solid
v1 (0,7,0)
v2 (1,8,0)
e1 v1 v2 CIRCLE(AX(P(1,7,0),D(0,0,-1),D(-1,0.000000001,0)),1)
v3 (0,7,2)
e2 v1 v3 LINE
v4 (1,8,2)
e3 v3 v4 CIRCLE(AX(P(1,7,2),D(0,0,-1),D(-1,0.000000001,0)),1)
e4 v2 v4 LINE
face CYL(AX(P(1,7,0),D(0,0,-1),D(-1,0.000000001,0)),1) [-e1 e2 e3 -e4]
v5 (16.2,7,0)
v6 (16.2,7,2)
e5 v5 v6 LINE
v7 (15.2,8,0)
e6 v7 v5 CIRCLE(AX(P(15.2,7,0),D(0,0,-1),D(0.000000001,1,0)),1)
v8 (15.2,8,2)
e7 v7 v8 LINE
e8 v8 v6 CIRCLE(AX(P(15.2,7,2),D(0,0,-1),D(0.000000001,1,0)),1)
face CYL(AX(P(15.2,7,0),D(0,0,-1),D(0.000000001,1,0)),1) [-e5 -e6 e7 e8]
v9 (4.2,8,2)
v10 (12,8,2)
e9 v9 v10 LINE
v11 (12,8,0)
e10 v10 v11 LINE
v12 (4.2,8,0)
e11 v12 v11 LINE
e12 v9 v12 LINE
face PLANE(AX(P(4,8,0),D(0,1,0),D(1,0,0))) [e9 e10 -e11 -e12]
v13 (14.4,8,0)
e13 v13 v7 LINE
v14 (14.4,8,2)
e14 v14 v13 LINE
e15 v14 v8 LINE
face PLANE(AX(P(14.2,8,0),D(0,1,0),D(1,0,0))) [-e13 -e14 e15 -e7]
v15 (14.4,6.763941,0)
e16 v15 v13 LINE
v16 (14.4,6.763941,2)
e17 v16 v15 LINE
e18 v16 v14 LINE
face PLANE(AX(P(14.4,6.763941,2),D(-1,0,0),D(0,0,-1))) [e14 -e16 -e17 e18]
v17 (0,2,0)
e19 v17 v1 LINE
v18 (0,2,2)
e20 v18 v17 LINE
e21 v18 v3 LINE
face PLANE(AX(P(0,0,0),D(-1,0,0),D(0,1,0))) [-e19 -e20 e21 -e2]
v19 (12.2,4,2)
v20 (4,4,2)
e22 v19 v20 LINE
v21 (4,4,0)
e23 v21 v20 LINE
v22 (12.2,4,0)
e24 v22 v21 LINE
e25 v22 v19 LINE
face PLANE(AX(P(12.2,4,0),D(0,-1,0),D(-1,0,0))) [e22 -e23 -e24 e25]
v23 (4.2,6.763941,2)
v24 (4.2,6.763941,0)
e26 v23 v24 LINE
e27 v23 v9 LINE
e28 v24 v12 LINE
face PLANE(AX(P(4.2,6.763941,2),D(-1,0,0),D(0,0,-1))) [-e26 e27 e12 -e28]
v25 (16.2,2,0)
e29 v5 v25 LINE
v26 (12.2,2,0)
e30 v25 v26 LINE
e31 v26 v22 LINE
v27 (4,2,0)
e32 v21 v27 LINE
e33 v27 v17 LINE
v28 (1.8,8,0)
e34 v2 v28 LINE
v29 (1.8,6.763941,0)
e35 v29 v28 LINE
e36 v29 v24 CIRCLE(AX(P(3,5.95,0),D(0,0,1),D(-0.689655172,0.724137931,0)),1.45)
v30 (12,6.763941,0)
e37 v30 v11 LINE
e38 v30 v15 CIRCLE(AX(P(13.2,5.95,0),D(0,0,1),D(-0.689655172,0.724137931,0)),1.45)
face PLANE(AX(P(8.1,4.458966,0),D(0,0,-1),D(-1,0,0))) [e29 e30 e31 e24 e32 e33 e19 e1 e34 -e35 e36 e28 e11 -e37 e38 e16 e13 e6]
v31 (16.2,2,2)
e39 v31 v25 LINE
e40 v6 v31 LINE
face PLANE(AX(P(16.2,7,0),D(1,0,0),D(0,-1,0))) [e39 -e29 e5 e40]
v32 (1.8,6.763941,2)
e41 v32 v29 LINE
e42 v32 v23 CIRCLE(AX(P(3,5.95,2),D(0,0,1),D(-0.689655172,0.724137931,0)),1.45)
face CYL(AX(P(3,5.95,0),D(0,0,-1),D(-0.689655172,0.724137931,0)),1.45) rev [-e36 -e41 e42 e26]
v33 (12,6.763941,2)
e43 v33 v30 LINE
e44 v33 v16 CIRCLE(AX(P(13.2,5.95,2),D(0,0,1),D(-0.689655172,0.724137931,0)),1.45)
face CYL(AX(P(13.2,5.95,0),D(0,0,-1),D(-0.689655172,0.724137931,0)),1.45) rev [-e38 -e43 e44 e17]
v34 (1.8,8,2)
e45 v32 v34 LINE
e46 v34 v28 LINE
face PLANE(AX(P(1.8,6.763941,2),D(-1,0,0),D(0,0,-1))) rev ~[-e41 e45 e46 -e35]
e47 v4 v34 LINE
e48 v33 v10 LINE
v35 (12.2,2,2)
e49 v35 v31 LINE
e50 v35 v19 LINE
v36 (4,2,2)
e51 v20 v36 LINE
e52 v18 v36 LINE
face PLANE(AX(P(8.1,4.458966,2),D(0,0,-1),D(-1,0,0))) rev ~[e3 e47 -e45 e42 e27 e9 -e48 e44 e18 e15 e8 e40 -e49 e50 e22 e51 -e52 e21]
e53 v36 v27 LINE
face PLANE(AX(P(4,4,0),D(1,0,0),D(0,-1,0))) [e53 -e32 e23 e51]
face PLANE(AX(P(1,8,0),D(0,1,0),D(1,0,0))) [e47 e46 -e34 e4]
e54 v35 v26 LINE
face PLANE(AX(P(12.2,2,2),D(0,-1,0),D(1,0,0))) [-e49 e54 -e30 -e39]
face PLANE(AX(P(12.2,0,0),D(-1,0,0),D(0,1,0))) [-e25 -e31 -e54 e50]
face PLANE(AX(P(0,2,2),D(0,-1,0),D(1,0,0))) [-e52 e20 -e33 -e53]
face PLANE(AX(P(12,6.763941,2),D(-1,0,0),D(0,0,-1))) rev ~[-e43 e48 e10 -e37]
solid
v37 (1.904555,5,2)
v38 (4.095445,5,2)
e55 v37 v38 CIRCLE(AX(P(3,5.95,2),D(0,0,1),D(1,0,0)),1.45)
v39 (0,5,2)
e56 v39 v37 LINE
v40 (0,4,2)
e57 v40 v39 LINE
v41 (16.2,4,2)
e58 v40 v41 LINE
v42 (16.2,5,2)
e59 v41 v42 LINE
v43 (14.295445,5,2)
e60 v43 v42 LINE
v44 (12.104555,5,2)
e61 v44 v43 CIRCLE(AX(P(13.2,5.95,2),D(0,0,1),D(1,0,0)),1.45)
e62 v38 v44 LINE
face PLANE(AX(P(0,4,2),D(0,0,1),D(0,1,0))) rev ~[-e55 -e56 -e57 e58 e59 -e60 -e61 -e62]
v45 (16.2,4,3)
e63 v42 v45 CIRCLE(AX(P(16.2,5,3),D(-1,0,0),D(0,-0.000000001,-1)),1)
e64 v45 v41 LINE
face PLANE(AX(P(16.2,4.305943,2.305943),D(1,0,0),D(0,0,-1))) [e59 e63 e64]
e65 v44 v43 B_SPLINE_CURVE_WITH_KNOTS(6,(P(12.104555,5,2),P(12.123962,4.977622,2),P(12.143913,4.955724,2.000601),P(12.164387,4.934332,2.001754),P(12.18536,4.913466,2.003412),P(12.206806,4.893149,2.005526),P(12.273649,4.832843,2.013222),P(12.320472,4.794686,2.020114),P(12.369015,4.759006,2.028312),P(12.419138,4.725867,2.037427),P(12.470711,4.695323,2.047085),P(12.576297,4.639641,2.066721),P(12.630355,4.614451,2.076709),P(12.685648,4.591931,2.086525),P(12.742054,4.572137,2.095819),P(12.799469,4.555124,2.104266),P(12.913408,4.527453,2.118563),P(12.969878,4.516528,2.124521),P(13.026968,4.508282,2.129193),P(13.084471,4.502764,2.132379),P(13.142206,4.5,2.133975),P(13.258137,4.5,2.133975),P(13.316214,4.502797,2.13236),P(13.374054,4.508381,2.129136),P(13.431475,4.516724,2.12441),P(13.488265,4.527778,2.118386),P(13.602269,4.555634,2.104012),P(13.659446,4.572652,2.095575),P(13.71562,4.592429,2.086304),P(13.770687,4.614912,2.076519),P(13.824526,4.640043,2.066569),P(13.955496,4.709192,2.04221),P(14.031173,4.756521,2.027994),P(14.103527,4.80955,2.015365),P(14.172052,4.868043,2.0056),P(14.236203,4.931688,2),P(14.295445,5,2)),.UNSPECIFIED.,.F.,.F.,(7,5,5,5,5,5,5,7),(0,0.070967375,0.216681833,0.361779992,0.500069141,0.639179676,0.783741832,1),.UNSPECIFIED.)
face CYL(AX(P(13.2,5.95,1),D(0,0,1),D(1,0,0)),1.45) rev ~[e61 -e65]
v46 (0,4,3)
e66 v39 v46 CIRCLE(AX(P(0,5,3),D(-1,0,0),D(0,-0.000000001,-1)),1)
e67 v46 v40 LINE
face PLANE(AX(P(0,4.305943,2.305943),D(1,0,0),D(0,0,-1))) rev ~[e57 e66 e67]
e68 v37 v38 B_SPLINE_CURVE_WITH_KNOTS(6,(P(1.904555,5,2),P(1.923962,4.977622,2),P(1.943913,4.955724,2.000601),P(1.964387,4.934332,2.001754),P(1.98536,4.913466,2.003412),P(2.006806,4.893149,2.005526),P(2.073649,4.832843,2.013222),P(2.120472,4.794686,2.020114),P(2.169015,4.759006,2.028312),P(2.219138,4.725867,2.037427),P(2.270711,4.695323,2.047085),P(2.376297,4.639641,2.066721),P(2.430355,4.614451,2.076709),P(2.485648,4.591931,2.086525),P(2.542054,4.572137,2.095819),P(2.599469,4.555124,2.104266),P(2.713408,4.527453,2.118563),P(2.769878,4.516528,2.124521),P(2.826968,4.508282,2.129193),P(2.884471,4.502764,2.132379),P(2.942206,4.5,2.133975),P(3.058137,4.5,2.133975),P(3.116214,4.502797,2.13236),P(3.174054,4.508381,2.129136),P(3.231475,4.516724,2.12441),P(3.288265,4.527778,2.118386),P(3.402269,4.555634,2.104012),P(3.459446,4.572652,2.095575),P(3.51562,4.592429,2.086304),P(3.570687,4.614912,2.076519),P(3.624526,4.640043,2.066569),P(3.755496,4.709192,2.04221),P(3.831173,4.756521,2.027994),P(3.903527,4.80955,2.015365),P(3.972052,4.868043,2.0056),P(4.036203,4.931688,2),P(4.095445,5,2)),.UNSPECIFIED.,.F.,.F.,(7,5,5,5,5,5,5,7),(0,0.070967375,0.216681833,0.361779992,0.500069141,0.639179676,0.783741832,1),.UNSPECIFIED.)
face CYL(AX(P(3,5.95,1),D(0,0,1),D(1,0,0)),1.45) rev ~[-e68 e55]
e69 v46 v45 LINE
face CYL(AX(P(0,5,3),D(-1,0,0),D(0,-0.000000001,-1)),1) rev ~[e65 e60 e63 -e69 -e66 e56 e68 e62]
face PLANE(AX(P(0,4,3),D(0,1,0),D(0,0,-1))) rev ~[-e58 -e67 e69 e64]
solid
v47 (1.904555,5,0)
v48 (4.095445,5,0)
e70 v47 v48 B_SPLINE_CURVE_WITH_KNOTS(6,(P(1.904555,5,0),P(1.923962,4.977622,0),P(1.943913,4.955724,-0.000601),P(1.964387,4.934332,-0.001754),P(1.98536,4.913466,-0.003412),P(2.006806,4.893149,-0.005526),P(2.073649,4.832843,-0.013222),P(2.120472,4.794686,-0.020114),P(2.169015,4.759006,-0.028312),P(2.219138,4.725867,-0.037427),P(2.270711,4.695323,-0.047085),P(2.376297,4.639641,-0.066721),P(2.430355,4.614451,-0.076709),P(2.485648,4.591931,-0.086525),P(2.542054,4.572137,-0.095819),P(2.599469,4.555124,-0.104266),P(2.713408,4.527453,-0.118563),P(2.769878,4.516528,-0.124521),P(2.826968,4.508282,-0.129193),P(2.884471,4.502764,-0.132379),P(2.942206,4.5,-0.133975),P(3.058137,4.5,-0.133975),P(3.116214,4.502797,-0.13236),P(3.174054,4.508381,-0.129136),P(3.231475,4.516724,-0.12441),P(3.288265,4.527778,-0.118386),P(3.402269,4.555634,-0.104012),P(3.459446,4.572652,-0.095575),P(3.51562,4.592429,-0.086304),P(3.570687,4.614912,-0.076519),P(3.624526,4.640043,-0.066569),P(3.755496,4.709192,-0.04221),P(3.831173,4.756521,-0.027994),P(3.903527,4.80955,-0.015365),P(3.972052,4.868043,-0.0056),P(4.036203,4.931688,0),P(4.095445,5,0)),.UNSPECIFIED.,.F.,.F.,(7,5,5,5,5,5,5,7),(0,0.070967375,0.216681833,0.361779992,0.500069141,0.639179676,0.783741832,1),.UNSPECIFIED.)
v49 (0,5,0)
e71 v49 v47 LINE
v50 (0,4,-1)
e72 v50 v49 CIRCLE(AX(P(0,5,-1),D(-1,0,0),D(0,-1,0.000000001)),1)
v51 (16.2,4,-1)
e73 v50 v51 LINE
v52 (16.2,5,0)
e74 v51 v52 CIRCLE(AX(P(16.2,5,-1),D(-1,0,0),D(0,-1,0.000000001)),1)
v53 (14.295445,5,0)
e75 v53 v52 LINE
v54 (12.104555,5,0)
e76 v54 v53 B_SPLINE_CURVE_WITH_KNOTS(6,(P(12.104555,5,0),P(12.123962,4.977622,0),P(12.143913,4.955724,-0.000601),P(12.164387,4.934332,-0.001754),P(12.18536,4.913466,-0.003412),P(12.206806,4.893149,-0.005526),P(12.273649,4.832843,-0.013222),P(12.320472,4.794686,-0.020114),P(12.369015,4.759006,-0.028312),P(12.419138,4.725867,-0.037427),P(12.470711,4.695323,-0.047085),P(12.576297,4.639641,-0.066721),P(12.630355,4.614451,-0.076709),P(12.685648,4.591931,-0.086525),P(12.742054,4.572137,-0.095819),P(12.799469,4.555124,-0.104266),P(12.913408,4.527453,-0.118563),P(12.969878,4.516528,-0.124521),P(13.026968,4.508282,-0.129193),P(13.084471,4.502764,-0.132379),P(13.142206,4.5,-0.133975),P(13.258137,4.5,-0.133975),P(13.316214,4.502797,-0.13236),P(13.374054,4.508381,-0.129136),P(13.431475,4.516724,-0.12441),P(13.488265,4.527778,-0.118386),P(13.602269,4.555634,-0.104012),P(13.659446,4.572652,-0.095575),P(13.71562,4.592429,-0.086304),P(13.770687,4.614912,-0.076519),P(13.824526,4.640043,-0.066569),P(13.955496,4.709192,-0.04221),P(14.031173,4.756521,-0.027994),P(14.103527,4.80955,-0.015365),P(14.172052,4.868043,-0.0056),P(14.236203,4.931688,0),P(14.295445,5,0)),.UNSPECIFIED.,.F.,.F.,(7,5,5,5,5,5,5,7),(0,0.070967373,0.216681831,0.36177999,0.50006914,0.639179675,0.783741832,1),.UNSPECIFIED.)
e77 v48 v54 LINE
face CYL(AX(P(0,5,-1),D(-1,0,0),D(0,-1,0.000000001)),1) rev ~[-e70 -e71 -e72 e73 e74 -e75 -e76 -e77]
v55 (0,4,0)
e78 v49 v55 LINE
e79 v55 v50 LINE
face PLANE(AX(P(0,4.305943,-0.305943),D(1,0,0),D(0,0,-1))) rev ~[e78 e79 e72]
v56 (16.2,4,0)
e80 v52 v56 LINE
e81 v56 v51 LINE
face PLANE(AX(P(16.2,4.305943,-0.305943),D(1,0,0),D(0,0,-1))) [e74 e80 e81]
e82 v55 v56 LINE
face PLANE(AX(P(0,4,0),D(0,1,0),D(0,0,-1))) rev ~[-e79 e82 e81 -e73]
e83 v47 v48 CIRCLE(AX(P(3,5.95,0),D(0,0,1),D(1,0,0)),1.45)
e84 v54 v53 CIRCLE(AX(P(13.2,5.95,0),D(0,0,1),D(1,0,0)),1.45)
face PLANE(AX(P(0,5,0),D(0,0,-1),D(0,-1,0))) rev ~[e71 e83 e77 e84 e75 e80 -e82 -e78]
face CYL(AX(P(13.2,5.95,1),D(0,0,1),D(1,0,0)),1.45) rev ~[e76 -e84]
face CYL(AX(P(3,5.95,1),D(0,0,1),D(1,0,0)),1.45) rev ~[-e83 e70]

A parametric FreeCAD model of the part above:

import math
import FreeCAD as App
import Part
import Sketcher
from FreeCAD import Vector


def add_polygon(sketch, points):
    """Adds a closed chain of lines whose ends are joined by coincident constraints."""
    first, n = sketch.GeometryCount, len(points)
    for a, b in zip(points, points[1:] + points[:1]):
        sketch.addGeometry(Part.LineSegment(App.Vector(*a, 0), App.Vector(*b, 0)), False)
    for i in range(n):
        sketch.addConstraint(Sketcher.Constraint("Coincident", first + i, 2, first + (i + 1) % n, 1))

doc = App.newDocument("Part")
body = doc.addObject("PartDesign::Body", "Body")

sketch1 = body.newObject("Sketcher::SketchObject", "Sketch")
sketch1.AttachmentSupport = (doc.getObject("XY_Plane"), [""])
sketch1.MapMode = "FlatFace"
sketch1.addGeometry([
    Part.LineSegment(Vector(12.2, 8, 0), Vector(4, 8, 0)),
    Part.LineSegment(Vector(4, 8, 0), Vector(4, 7, 0)),
    Part.ArcOfCircle(Part.Circle(Vector(3, 6, 0), Vector(0, 0, 1), 1.4), math.radians(134), math.radians(406)),
    Part.LineSegment(Vector(2, 7, 0), Vector(2, 8, 0)),
    Part.LineSegment(Vector(2, 8, 0), Vector(1, 8, 0)),
    Part.ArcOfCircle(Part.Circle(Vector(1, 7, 0), Vector(0, 0, 1), 1), math.radians(90), math.radians(180)),
    Part.LineSegment(Vector(0, 7, 0), Vector(0, 0, 0)),
    Part.LineSegment(Vector(0, 0, 0), Vector(4, 0, 0)),
    Part.LineSegment(Vector(4, 0, 0), Vector(4, 4, 0)),
    Part.LineSegment(Vector(4, 4, 0), Vector(12.2, 4, 0)),
    Part.LineSegment(Vector(12.2, 4, 0), Vector(12.2, 0, 0)),
    Part.LineSegment(Vector(12.2, 0, 0), Vector(16.2, 0, 0)),
    Part.LineSegment(Vector(16.2, 0, 0), Vector(16.2, 7, 0)),
    Part.ArcOfCircle(Part.Circle(Vector(15.2, 7, 0), Vector(0, 0, 1), 1), math.radians(0), math.radians(90)),
    Part.LineSegment(Vector(15.2, 8, 0), Vector(14.2, 8, 0)),
    Part.LineSegment(Vector(14.2, 8, 0), Vector(14.2, 7, 0)),
    Part.ArcOfCircle(Part.Circle(Vector(13.2, 6, 0), Vector(0, 0, 1), 1.4), math.radians(134), math.radians(406)),
    Part.LineSegment(Vector(12.2, 7, 0), Vector(12.2, 8, 0)),
], False)
sketch1.addConstraint([
    Sketcher.Constraint("Coincident", 0, 2, 1, 1),
    Sketcher.Constraint("Coincident", 1, 2, 2, 2),
    Sketcher.Constraint("Coincident", 2, 1, 3, 1),
    Sketcher.Constraint("Coincident", 3, 2, 4, 1),
    Sketcher.Constraint("Tangent", 4, 2, 5, 1),
    Sketcher.Constraint("Tangent", 5, 2, 6, 1),
    Sketcher.Constraint("Coincident", 6, 2, 7, 1),
    Sketcher.Constraint("Coincident", 7, 2, 8, 1),
    Sketcher.Constraint("Coincident", 8, 2, 9, 1),
    Sketcher.Constraint("Coincident", 9, 2, 10, 1),
    Sketcher.Constraint("Coincident", 10, 2, 11, 1),
    Sketcher.Constraint("Coincident", 11, 2, 12, 1),
    Sketcher.Constraint("Tangent", 12, 2, 13, 1),
    Sketcher.Constraint("Tangent", 13, 2, 14, 1),
    Sketcher.Constraint("Coincident", 14, 2, 15, 1),
    Sketcher.Constraint("Coincident", 15, 2, 16, 2),
    Sketcher.Constraint("Coincident", 16, 1, 17, 1),
    Sketcher.Constraint("Coincident", 17, 2, 0, 1),
    Sketcher.Constraint("Horizontal", 0),
    Sketcher.Constraint("Vertical", 1),
    Sketcher.Constraint("Vertical", 3),
    Sketcher.Constraint("Horizontal", 4),
    Sketcher.Constraint("Vertical", 6),
    Sketcher.Constraint("Horizontal", 7),
    Sketcher.Constraint("Vertical", 8),
    Sketcher.Constraint("Horizontal", 9),
    Sketcher.Constraint("Vertical", 10),
    Sketcher.Constraint("Horizontal", 11),
    Sketcher.Constraint("Vertical", 12),
    Sketcher.Constraint("Horizontal", 14),
    Sketcher.Constraint("Vertical", 15),
    Sketcher.Constraint("Vertical", 17),
    Sketcher.Constraint("Coincident", 6, 2, -1, 1),
    Sketcher.Constraint("Equal", 5, 13),
    Sketcher.Constraint("Equal", 2, 16),
    Sketcher.Constraint("PointOnObject", 10, 2, -1),
    Sketcher.Constraint("Horizontal", 5, 3, 13, 3),
    Sketcher.Constraint("Horizontal", 2, 3, 16, 3),
    Sketcher.Constraint("Horizontal", 13, 3, 1, 2),
    Sketcher.Constraint("Horizontal", 1, 2, 2, 1),
    Sketcher.Constraint("Horizontal", 0, 2, 3, 2),
    Sketcher.Constraint("Horizontal", 12, 2, 15, 2),
    Sketcher.Constraint("Horizontal", 15, 2, 16, 1),
    Sketcher.Constraint("Vertical", 1, 2, 7, 2),
    Sketcher.Constraint("Vertical", 10, 2, 16, 1),
    Sketcher.Constraint("Equal", 7, 11),
    Sketcher.Constraint("Equal", 14, 1),
    Sketcher.Constraint("Equal", 11, 8),
    Sketcher.Constraint("Radius", 5, 1.0),
    Sketcher.Constraint("DistanceX", 7, 1, 7, 2, 4.0),
    Sketcher.Constraint("DistanceY", 6, 2, 6, 1, 7.0),
    Sketcher.Constraint("Radius", 2, 1.45),
    Sketcher.Constraint("DistanceX", 0, 2, 0, 1, 8.2),
])
pad1 = body.newObject("PartDesign::Pad", "Pad")
pad1.Profile = sketch1
pad1.Length = 2

sketch2 = body.newObject("Sketcher::SketchObject", "Sketch001")
sketch2.AttachmentSupport = (doc.getObject("XY_Plane"), [""])
sketch2.MapMode = "FlatFace"
sketch2.AttachmentOffset = App.Placement(Vector(0, 0, 2), App.Rotation())
add_polygon(sketch2, [(0, 2), (0, 0), (4, 0), (4, 2)])
add_polygon(sketch2, [(12.2, 2), (12.2, 0), (16.2, 0), (16.2, 2)])
sketch2.addConstraint([
    Sketcher.Constraint("Vertical", 0),
    Sketcher.Constraint("Horizontal", 1),
    Sketcher.Constraint("Vertical", 2),
    Sketcher.Constraint("Horizontal", 3),
    Sketcher.Constraint("Vertical", 4),
    Sketcher.Constraint("Horizontal", 5),
    Sketcher.Constraint("Vertical", 6),
    Sketcher.Constraint("Horizontal", 7),
    Sketcher.Constraint("Coincident", 0, 2, -1, 1),
    Sketcher.Constraint("PointOnObject", 4, 2, -1),
    Sketcher.Constraint("Horizontal", 3, 2, 6, 2),
    Sketcher.Constraint("Equal", 3, 5),
    Sketcher.Constraint("DistanceX", 1, 1, 1, 2, 4.0),
    Sketcher.Constraint("DistanceY", 0, 2, 0, 1, 2.0),
    Sketcher.Constraint("DistanceX", -1, 1, 4, 2, 12.2),
])
pocket1 = body.newObject("PartDesign::Pocket", "Pocket")
pocket1.Profile = sketch2
pocket1.Type = "ThroughAll"

sketch3 = body.newObject("Sketcher::SketchObject", "Sketch002")
sketch3.AttachmentSupport = (doc.getObject("XZ_Plane"), [""])
sketch3.MapMode = "FlatFace"
sketch3.AttachmentOffset = App.Placement(Vector(0, 0, -6.763941), App.Rotation())
add_polygon(sketch3, [(1.8, 0), (1.8, 2), (4.2, 2), (4.2, 0)])
add_polygon(sketch3, [(12, 0), (12, 2), (14.4, 2), (14.4, 0)])
sketch3.addConstraint([
    Sketcher.Constraint("Vertical", 0),
    Sketcher.Constraint("Horizontal", 1),
    Sketcher.Constraint("Vertical", 2),
    Sketcher.Constraint("Horizontal", 3),
    Sketcher.Constraint("Vertical", 4),
    Sketcher.Constraint("Horizontal", 5),
    Sketcher.Constraint("Vertical", 6),
    Sketcher.Constraint("Horizontal", 7),
    Sketcher.Constraint("PointOnObject", 2, 2, -1),
    Sketcher.Constraint("PointOnObject", 6, 2, -1),
    Sketcher.Constraint("Horizontal", 1, 2, 4, 2),
    Sketcher.Constraint("Equal", 3, 5),
    Sketcher.Constraint("DistanceY", 0, 1, 0, 2, 2.0),
    Sketcher.Constraint("DistanceX", 1, 1, 1, 2, 2.4),
    Sketcher.Constraint("DistanceX", -1, 1, 4, 2, 12.0),
    Sketcher.Constraint("DistanceX", -1, 1, 0, 2, 1.8),
])
pocket2 = body.newObject("PartDesign::Pocket", "Pocket001")
pocket2.Profile = sketch3
pocket2.Length = 1.236059
body2 = doc.addObject("PartDesign::Body", "Body001")

sketch4 = body2.newObject("Sketcher::SketchObject", "Sketch003")
sketch4.AttachmentSupport = (doc.getObject("YZ_Plane001"), [""])
sketch4.MapMode = "FlatFace"
sketch4.addGeometry([
    Part.LineSegment(Vector(5, 2, 0), Vector(4, 2, 0)),
    Part.LineSegment(Vector(4, 2, 0), Vector(4, 3, 0)),
    Part.ArcOfCircle(Part.Circle(Vector(5, 3, 0), Vector(0, 0, 1), 1), math.radians(-180), math.radians(-90)),
], False)
sketch4.addConstraint([
    Sketcher.Constraint("Coincident", 0, 2, 1, 1),
    Sketcher.Constraint("Tangent", 1, 2, 2, 1),
    Sketcher.Constraint("Tangent", 2, 2, 0, 1),
    Sketcher.Constraint("Horizontal", 0),
    Sketcher.Constraint("Vertical", 1),
    Sketcher.Constraint("Radius", 2, 1.0),
    Sketcher.Constraint("DistanceX", -1, 1, 2, 3, 5.0),
    Sketcher.Constraint("DistanceY", -1, 1, 2, 3, 3.0),
])
pad2 = body2.newObject("PartDesign::Pad", "Pad001")
pad2.Profile = sketch4
pad2.Length = 16.2
body3 = doc.addObject("PartDesign::Body", "Body002")

sketch5 = body3.newObject("Sketcher::SketchObject", "Sketch004")
sketch5.AttachmentSupport = (doc.getObject("YZ_Plane002"), [""])
sketch5.MapMode = "FlatFace"
sketch5.addGeometry([
    Part.LineSegment(Vector(4, -1, 0), Vector(4, 0, 0)),
    Part.LineSegment(Vector(4, 0, 0), Vector(5, 0, 0)),
    Part.ArcOfCircle(Part.Circle(Vector(5, -1, 0), Vector(0, 0, 1), 1), math.radians(90), math.radians(180)),
], False)
sketch5.addConstraint([
    Sketcher.Constraint("Coincident", 0, 2, 1, 1),
    Sketcher.Constraint("Tangent", 1, 2, 2, 1),
    Sketcher.Constraint("Tangent", 2, 2, 0, 1),
    Sketcher.Constraint("Vertical", 0),
    Sketcher.Constraint("Horizontal", 1),
    Sketcher.Constraint("PointOnObject", 0, 2, -1),
    Sketcher.Constraint("Radius", 2, 1.0),
    Sketcher.Constraint("DistanceX", -1, 1, 2, 3, 5.0),
])
pad3 = body3.newObject("PartDesign::Pad", "Pad002")
pad3.Profile = sketch5
pad3.Length = 16.2
body4 = doc.addObject("PartDesign::Body", "Body003")
body4.AllowCompound = True

sketch6 = body4.newObject("Sketcher::SketchObject", "Sketch005")
sketch6.AttachmentSupport = (doc.getObject("XY_Plane003"), [""])
sketch6.MapMode = "FlatFace"
sketch6.AttachmentOffset = App.Placement(Vector(0, 0, 1), App.Rotation())
sketch6.addGeometry([
    Part.Circle(Vector(3, 6, 0), Vector(0, 0, 1), 1.4),
    Part.Circle(Vector(13.2, 6, 0), Vector(0, 0, 1), 1.4),
], False)
sketch6.addConstraint([
    Sketcher.Constraint("Equal", 0, 1),
    Sketcher.Constraint("Horizontal", 0, 3, 1, 3),
    Sketcher.Constraint("Diameter", 0, 2.9),
    Sketcher.Constraint("DistanceX", -1, 1, 0, 3, 3.0),
    Sketcher.Constraint("DistanceX", -1, 1, 1, 3, 13.2),
    Sketcher.Constraint("DistanceY", -1, 1, 0, 3, 5.95),
])
pad4 = body4.newObject("PartDesign::Pad", "Pad003")
pad4.Profile = sketch6
pad4.Type = "TwoLengths"
pad4.Length = 3
pad4.Length2 = 3
doc.recompute()

body5 = doc.addObject("PartDesign::Body", "Body004")
body5.BaseFeature = body4
boolean = body2.newObject("PartDesign::Boolean", "Boolean")
boolean.Type = "Cut"
boolean.addObjects([body5])
doc.recompute()

boolean2 = body3.newObject("PartDesign::Boolean", "Boolean001")
boolean2.Type = "Cut"
boolean2.addObjects([body4])

doc.recompute()
